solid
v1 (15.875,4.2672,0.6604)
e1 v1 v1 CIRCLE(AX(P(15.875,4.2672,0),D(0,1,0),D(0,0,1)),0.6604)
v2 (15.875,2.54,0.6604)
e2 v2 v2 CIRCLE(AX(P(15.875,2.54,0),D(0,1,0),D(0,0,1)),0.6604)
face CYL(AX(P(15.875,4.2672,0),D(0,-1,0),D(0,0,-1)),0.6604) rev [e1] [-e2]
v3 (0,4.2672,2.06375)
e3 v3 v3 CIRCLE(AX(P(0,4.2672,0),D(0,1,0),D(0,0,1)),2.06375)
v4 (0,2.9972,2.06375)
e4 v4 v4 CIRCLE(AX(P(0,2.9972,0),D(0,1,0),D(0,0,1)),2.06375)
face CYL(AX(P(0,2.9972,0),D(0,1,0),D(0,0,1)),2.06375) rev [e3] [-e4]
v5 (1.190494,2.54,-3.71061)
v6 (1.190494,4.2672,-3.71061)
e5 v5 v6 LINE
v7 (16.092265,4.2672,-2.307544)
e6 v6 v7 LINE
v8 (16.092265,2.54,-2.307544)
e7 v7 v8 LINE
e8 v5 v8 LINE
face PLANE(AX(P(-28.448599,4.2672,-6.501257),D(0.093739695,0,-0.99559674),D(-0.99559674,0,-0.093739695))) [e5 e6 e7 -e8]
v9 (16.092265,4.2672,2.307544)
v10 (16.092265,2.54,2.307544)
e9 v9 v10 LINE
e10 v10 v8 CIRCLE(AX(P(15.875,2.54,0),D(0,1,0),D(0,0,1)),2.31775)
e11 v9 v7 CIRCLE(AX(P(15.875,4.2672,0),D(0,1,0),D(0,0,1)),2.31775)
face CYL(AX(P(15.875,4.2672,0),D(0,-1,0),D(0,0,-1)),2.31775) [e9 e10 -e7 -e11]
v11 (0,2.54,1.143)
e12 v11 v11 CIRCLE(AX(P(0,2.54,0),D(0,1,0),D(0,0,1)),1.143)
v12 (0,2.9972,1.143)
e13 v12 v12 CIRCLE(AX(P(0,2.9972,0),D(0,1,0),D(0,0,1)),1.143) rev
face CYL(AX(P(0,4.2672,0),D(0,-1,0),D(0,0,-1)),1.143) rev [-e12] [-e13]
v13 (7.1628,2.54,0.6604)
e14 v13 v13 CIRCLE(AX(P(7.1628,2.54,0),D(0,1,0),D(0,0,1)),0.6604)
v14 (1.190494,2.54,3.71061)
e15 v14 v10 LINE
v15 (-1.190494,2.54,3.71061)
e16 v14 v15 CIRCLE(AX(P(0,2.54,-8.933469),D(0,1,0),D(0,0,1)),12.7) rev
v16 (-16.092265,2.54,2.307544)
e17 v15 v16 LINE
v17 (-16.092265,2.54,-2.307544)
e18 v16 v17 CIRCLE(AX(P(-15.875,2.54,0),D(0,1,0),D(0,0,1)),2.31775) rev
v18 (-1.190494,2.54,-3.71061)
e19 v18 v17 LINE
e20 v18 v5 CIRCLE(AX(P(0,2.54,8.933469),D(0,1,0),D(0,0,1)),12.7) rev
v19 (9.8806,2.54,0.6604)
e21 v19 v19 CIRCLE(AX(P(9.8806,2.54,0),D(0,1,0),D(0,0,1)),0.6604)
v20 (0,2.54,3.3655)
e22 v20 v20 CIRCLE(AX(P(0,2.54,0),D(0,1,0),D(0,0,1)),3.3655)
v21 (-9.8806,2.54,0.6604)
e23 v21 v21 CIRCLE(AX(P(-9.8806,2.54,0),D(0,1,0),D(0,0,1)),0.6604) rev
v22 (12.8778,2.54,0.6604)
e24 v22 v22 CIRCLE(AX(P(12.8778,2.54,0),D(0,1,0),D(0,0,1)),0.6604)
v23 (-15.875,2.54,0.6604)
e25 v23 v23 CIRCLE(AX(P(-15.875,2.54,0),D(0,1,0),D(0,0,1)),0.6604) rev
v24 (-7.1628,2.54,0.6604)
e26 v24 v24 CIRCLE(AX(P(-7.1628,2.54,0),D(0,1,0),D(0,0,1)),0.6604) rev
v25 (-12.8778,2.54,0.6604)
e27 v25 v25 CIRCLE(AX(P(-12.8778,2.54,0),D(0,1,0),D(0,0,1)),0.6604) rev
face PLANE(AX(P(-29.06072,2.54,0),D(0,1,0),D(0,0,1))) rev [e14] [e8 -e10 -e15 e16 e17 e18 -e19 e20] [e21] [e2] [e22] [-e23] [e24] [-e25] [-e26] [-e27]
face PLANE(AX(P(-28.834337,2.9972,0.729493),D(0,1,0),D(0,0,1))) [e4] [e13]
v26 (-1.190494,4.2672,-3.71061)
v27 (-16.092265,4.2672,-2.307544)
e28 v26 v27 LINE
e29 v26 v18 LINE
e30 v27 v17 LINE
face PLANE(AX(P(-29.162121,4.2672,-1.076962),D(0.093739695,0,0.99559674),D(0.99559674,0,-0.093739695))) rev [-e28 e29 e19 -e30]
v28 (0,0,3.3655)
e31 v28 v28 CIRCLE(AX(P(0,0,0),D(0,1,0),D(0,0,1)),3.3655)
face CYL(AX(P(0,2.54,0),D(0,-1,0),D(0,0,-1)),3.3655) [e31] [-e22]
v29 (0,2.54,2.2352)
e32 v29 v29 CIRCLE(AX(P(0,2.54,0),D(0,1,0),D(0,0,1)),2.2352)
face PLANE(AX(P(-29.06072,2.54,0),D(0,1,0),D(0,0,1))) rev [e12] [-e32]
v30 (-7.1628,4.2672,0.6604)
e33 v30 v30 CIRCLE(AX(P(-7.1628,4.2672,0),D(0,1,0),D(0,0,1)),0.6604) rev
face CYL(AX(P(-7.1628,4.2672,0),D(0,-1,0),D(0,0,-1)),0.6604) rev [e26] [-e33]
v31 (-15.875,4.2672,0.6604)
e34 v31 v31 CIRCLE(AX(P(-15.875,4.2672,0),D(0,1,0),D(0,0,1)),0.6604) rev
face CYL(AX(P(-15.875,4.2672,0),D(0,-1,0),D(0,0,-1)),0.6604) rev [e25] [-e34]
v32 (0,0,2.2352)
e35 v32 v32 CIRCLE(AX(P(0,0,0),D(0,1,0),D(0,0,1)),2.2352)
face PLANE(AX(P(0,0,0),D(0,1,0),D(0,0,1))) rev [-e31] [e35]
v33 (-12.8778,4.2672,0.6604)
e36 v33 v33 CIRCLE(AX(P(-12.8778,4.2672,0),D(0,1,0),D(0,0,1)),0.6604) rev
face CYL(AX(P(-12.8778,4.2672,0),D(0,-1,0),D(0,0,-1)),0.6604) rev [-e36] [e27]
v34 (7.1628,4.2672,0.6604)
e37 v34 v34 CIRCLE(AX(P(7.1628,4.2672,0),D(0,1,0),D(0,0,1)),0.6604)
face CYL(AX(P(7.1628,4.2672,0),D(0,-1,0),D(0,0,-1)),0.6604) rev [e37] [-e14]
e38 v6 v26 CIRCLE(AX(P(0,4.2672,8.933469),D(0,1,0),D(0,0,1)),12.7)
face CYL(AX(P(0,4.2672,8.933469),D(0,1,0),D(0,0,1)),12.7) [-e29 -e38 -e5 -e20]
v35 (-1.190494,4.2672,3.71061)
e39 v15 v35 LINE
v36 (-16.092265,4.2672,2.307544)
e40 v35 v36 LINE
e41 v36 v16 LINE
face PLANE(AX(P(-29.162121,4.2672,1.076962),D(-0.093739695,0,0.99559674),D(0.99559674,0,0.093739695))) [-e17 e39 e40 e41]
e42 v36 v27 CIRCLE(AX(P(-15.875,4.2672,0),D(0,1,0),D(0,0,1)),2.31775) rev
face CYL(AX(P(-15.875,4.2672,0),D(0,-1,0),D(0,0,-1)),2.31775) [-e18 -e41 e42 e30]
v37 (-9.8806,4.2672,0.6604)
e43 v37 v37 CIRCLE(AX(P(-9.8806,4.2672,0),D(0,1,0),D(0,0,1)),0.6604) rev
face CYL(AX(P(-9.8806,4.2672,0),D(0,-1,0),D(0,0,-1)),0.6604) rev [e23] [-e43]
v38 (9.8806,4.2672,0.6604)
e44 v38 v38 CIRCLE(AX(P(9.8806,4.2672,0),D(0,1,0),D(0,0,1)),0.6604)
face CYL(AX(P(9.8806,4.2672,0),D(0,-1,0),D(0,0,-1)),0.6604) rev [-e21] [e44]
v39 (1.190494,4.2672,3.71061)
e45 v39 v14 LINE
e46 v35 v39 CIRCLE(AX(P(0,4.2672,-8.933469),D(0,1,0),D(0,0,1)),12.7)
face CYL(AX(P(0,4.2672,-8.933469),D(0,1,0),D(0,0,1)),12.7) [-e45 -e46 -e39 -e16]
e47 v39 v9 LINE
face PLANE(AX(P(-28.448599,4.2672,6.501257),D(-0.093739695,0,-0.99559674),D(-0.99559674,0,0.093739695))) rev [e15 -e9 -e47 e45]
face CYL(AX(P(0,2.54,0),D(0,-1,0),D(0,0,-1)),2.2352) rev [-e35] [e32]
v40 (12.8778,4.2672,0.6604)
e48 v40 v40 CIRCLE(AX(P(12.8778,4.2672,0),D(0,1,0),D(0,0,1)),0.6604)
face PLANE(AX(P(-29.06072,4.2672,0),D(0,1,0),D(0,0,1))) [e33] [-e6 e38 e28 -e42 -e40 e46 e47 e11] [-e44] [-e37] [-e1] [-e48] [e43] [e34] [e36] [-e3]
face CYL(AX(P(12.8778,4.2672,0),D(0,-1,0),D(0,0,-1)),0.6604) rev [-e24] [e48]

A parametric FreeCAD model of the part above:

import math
import FreeCAD as App
import Part
import Sketcher
Q = App.Units.Quantity


def edges_at(feature, points):
    """Names of the edges that pass closest to the given points."""
    edges = feature.Shape.Edges
    near = lambda p: min(range(len(edges)), key=lambda i: edges[i].distToShape(Part.Vertex(*p))[0])
    return sorted({f"Edge{near(p) + 1}" for p in points})

doc = App.newDocument("Part")
body = doc.addObject("PartDesign::Body", "Body")

# Sketch on XZ plane
sketch1 = body.newObject("Sketcher::SketchObject", "Sketch")
sketch1.AttachmentSupport = (doc.getObject("XZ_Plane"), [""])
sketch1.MapMode = "FlatFace"
sketch1.addGeometry(Part.Circle(App.Vector(0, 0, 0), App.Vector(0, 0, 1), 3.4), False)
sketch1.addGeometry(Part.Circle(App.Vector(0, 0, 0), App.Vector(0, 0, 1), 2.2), False)
sketch1.addConstraint(Sketcher.Constraint("Coincident", 0, 3, -1, 1))
sketch1.addConstraint(Sketcher.Constraint("Coincident", 1, 3, -1, 1))
sketch1.addConstraint(Sketcher.Constraint("Diameter", 0, Q("0.265 in")))
sketch1.addConstraint(Sketcher.Constraint("Diameter", 1, Q("0.176 in")))
pad1 = body.newObject("PartDesign::Pad", "Pad")
pad1.Profile = sketch1
pad1.Length = Q("0.1 in")
pad1.Reversed = True

# Sketch on XZ plane
sketch2 = body.newObject("Sketcher::SketchObject", "Sketch001")
sketch2.AttachmentSupport = (doc.getObject("XZ_Plane"), [""])
sketch2.MapMode = "FlatFace"
sketch2.AttachmentOffset = App.Placement(App.Vector(0, 0, -0.1 * 25.4), App.Rotation())
sketch2.addGeometry(Part.LineSegment(App.Vector(-16.1, 2.3, 0), App.Vector(-0.7, 3.8, 0)), False)
sketch2.addGeometry(Part.LineSegment(App.Vector(-0.7, 3.8, 0), App.Vector(0, 3.8, 0)), False)
sketch2.addGeometry(Part.LineSegment(App.Vector(0, 3.8, 0), App.Vector(0.7, 3.8, 0)), False)
sketch2.addGeometry(Part.LineSegment(App.Vector(0.7, 3.8, 0), App.Vector(16.1, 2.3, 0)), False)
sketch2.addGeometry(Part.ArcOfCircle(Part.Circle(App.Vector(15.9, 0, 0), App.Vector(0, 0, 1), 2.3), math.radians(-85), math.radians(85)), False)
sketch2.addGeometry(Part.LineSegment(App.Vector(16.1, -2.3, 0), App.Vector(0.7, -3.8, 0)), False)
sketch2.addGeometry(Part.LineSegment(App.Vector(0.7, -3.8, 0), App.Vector(0, -3.8, 0)), False)
sketch2.addGeometry(Part.LineSegment(App.Vector(0, -3.8, 0), App.Vector(-0.7, -3.8, 0)), False)
sketch2.addGeometry(Part.LineSegment(App.Vector(-0.7, -3.8, 0), App.Vector(-16.1, -2.3, 0)), False)
sketch2.addGeometry(Part.ArcOfCircle(Part.Circle(App.Vector(-15.9, 0, 0), App.Vector(0, 0, 1), 2.3), math.radians(95), math.radians(265)), False)
sketch2.addGeometry(Part.Circle(App.Vector(-15.9, 0, 0), App.Vector(0, 0, 1), 0.7), False)
sketch2.addGeometry(Part.Circle(App.Vector(-12.9, 0, 0), App.Vector(0, 0, 1), 0.7), False)
sketch2.addGeometry(Part.Circle(App.Vector(-9.9, 0, 0), App.Vector(0, 0, 1), 0.7), False)
sketch2.addGeometry(Part.Circle(App.Vector(-7.2, 0, 0), App.Vector(0, 0, 1), 0.7), False)
sketch2.addGeometry(Part.Circle(App.Vector(0, 0, 0), App.Vector(0, 0, 1), 1.1), False)
sketch2.addGeometry(Part.Circle(App.Vector(7.2, 0, 0), App.Vector(0, 0, 1), 0.7), False)
sketch2.addGeometry(Part.Circle(App.Vector(9.9, 0, 0), App.Vector(0, 0, 1), 0.7), False)
sketch2.addGeometry(Part.Circle(App.Vector(12.9, 0, 0), App.Vector(0, 0, 1), 0.7), False)
sketch2.addGeometry(Part.Circle(App.Vector(15.9, 0, 0), App.Vector(0, 0, 1), 0.7), False)
sketch2.addConstraint(Sketcher.Constraint("Coincident", 0, 2, 1, 1))
sketch2.addConstraint(Sketcher.Constraint("Coincident", 1, 2, 2, 1))
sketch2.addConstraint(Sketcher.Constraint("Coincident", 2, 2, 3, 1))
sketch2.addConstraint(Sketcher.Constraint("Tangent", 3, 2, 4, 2))
sketch2.addConstraint(Sketcher.Constraint("Tangent", 4, 1, 5, 1))
sketch2.addConstraint(Sketcher.Constraint("Coincident", 5, 2, 6, 1))
sketch2.addConstraint(Sketcher.Constraint("Coincident", 6, 2, 7, 1))
sketch2.addConstraint(Sketcher.Constraint("Coincident", 7, 2, 8, 1))
sketch2.addConstraint(Sketcher.Constraint("Tangent", 8, 2, 9, 2))
sketch2.addConstraint(Sketcher.Constraint("Tangent", 9, 1, 0, 1))
sketch2.addConstraint(Sketcher.Constraint("Coincident", 14, 3, -1, 1))
sketch2.addConstraint(Sketcher.Constraint("Coincident", 10, 3, 9, 3))
sketch2.addConstraint(Sketcher.Constraint("Coincident", 18, 3, 4, 3))
sketch2.addConstraint(Sketcher.Constraint("Equal", 4, 9))
sketch2.addConstraint(Sketcher.Constraint("Equal", 10, 11))
sketch2.addConstraint(Sketcher.Constraint("Equal", 11, 12))
sketch2.addConstraint(Sketcher.Constraint("Equal", 12, 13))
sketch2.addConstraint(Sketcher.Constraint("Equal", 13, 15))
sketch2.addConstraint(Sketcher.Constraint("Equal", 15, 16))
sketch2.addConstraint(Sketcher.Constraint("Equal", 16, 17))
sketch2.addConstraint(Sketcher.Constraint("Equal", 17, 18))
sketch2.addConstraint(Sketcher.Constraint("Symmetric", 4, 3, 9, 3, -1, 1))
sketch2.addConstraint(Sketcher.Constraint("Symmetric", 13, 3, 15, 3, -1, 1))
sketch2.addConstraint(Sketcher.Constraint("Symmetric", 12, 3, 16, 3, -1, 1))
sketch2.addConstraint(Sketcher.Constraint("Symmetric", 11, 3, 17, 3, -1, 1))
sketch2.addConstraint(Sketcher.Constraint("Symmetric", 0, 2, 5, 2, -1, 1))
sketch2.addConstraint(Sketcher.Constraint("Symmetric", 1, 2, 6, 2, -1, 1))
sketch2.addConstraint(Sketcher.Constraint("Symmetric", 2, 2, 7, 2, -1, 1))
sketch2.addConstraint(Sketcher.Constraint("Symmetric", 0, 2, 2, 2, -2))
sketch2.addConstraint(Sketcher.Constraint("PointOnObject", 4, 3, -1))
sketch2.addConstraint(Sketcher.Constraint("PointOnObject", 11, 3, -1))
sketch2.addConstraint(Sketcher.Constraint("PointOnObject", 12, 3, -1))
sketch2.addConstraint(Sketcher.Constraint("PointOnObject", 13, 3, -1))
sketch2.addConstraint(Sketcher.Constraint("PointOnObject", 1, 2, -2))
sketch2.addConstraint(Sketcher.Constraint("Parallel", 0, 1))
sketch2.addConstraint(Sketcher.Constraint("Diameter", 14, Q("0.09 in")))
sketch2.addConstraint(Sketcher.Constraint("Diameter", 10, Q("0.052 in")))
sketch2.addConstraint(Sketcher.Constraint("DistanceX", 9, 3, 4, 3, Q("1.25 in")))
sketch2.addConstraint(Sketcher.Constraint("DistanceX", 11, 3, -1, 1, Q("0.507 in")))
sketch2.addConstraint(Sketcher.Constraint("DistanceX", 12, 3, -1, 1, Q("0.389 in")))
sketch2.addConstraint(Sketcher.Constraint("DistanceX", 13, 3, -1, 1, Q("0.282 in")))
sketch2.addConstraint(Sketcher.Constraint("Radius", 4, Q("2.31775 mm")))
sketch2.addConstraint(Sketcher.Constraint("DistanceY", 6, 2, 1, 2, Q("0.301 in")))
sketch2.addConstraint(Sketcher.Constraint("Distance", 0, Q("15.44676 mm")))
pad2 = body.newObject("PartDesign::Pad", "Pad001")
pad2.Profile = sketch2
pad2.Length = Q("0.068 in")
pad2.Reversed = True
doc.recompute()

fillet = body.newObject("PartDesign::Fillet", "Fillet")
fillet.Base = (pad2, edges_at(pad2, [(0, 3.404, -3.823), (0, 3.404, 3.823)]))
fillet.Radius = Q("0.5 in")

# Sketch on XZ plane
sketch3 = body.newObject("Sketcher::SketchObject", "Sketch002")
sketch3.AttachmentSupport = (doc.getObject("XZ_Plane"), [""])
sketch3.MapMode = "FlatFace"
sketch3.AttachmentOffset = App.Placement(App.Vector(0, 0, -0.168 * 25.4), App.Rotation())
sketch3.addGeometry(Part.Circle(App.Vector(0, 0, 0), App.Vector(0, 0, 1), 2.1), False)
sketch3.addGeometry(Part.Circle(App.Vector(0, 0, 0), App.Vector(0, 0, 1), 1.1), False)
sketch3.addConstraint(Sketcher.Constraint("Coincident", 0, 3, -1, 1))
sketch3.addConstraint(Sketcher.Constraint("Coincident", 1, 3, -1, 1))
sketch3.addConstraint(Sketcher.Constraint("Diameter", 1, Q("0.09 in")))
sketch3.addConstraint(Sketcher.Constraint("Diameter", 0, Q("0.1625 in")))
pocket1 = body.newObject("PartDesign::Pocket", "Pocket")
pocket1.Profile = sketch3
pocket1.Length = Q("0.05 in")
pocket1.Reversed = True

doc.recompute()
